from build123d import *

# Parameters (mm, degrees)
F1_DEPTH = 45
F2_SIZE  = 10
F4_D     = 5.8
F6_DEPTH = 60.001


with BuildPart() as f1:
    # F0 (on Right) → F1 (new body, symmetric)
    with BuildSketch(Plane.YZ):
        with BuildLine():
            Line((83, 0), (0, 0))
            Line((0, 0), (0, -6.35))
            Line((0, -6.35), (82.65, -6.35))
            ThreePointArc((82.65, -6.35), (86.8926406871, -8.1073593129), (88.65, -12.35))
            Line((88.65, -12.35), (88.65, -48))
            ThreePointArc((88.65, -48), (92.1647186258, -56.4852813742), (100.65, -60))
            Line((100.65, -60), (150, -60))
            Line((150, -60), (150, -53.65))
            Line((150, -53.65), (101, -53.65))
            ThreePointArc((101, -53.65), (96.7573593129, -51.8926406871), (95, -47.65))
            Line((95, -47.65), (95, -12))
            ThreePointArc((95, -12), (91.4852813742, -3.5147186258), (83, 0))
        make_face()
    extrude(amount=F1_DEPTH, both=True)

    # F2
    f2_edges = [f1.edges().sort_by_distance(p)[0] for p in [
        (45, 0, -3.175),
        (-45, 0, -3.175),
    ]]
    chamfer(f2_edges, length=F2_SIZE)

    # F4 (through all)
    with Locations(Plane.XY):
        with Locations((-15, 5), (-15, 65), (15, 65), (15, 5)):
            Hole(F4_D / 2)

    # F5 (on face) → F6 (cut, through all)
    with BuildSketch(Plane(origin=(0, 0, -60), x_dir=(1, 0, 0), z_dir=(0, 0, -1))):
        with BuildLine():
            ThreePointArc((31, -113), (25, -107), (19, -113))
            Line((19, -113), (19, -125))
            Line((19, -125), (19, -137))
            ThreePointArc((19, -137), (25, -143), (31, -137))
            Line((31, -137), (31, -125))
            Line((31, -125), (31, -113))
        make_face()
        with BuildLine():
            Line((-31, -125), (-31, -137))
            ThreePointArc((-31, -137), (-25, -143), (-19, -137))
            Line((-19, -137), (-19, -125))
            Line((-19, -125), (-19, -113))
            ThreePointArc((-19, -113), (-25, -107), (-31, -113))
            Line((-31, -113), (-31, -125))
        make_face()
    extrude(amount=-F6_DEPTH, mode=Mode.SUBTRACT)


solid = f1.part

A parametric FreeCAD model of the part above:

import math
import FreeCAD as App
import Part
import Sketcher
from FreeCAD import Vector


def edges_at(feature, points):
    """Names of the edges that pass closest to the given points."""
    edges = feature.Shape.Edges
    near = lambda p: min(range(len(edges)), key=lambda i: edges[i].distToShape(Part.Vertex(*p))[0])
    return sorted({f"Edge{near(p) + 1}" for p in points})

doc = App.newDocument("Part")
body = doc.addObject("PartDesign::Body", "Body")

# Sketch on YZ plane
sketch1 = body.newObject("Sketcher::SketchObject", "Sketch")
sketch1.AttachmentSupport = (doc.getObject("YZ_Plane"), [""])
sketch1.MapMode = "FlatFace"
sketch1.addGeometry([
    Part.LineSegment(Vector(83, 0, 0), Vector(0, 0, 0)),  # 0
    Part.LineSegment(Vector(0, 0, 0), Vector(0, -6, 0)),  # 1
    Part.LineSegment(Vector(0, -6, 0), Vector(83, -6, 0)),  # 2
    Part.ArcOfCircle(Part.Circle(Vector(83, -12, 0), Vector(0, 0, 1), 6), math.radians(0), math.radians(90)),  # 3
    Part.LineSegment(Vector(89, -12, 0), Vector(89, -48, 0)),  # 4
    Part.ArcOfCircle(Part.Circle(Vector(101, -48, 0), Vector(0, 0, 1), 12), math.radians(180), math.radians(270)),  # 5
    Part.LineSegment(Vector(101, -60, 0), Vector(150, -60, 0)),  # 6
    Part.LineSegment(Vector(150, -60, 0), Vector(150, -54, 0)),  # 7
    Part.LineSegment(Vector(150, -54, 0), Vector(101, -54, 0)),  # 8
    Part.ArcOfCircle(Part.Circle(Vector(101, -48, 0), Vector(0, 0, 1), 6), math.radians(180), math.radians(270)),  # 9
    Part.LineSegment(Vector(95, -48, 0), Vector(95, -12, 0)),  # 10
    Part.ArcOfCircle(Part.Circle(Vector(83, -12, 0), Vector(0, 0, 1), 12), math.radians(0), math.radians(90)),  # 11
], False)
sketch1.addConstraint([
    Sketcher.Constraint("Coincident", 0, 2, 1, 1),
    Sketcher.Constraint("Coincident", 1, 2, 2, 1),
    Sketcher.Constraint("Tangent", 2, 2, 3, 2),
    Sketcher.Constraint("Tangent", 3, 1, 4, 1),
    Sketcher.Constraint("Tangent", 4, 2, 5, 1),
    Sketcher.Constraint("Tangent", 5, 2, 6, 1),
    Sketcher.Constraint("Coincident", 6, 2, 7, 1),
    Sketcher.Constraint("Coincident", 7, 2, 8, 1),
    Sketcher.Constraint("Tangent", 8, 2, 9, 2),
    Sketcher.Constraint("Tangent", 9, 1, 10, 1),
    Sketcher.Constraint("Tangent", 10, 2, 11, 1),
    Sketcher.Constraint("Tangent", 11, 2, 0, 1),
    Sketcher.Constraint("Horizontal", 0),
    Sketcher.Constraint("Vertical", 1),
    Sketcher.Constraint("Horizontal", 2),
    Sketcher.Constraint("Vertical", 4),
    Sketcher.Constraint("Horizontal", 6),
    Sketcher.Constraint("Vertical", 7),
    Sketcher.Constraint("Horizontal", 8),
    Sketcher.Constraint("Vertical", 10),
    Sketcher.Constraint("Coincident", 0, 2, -1, 1),
    Sketcher.Constraint("Equal", 3, 9),
    Sketcher.Constraint("Equal", 5, 11),
    Sketcher.Constraint("Equal", 1, 7),
    Sketcher.Constraint("Radius", 3, 6.0),
    Sketcher.Constraint("Radius", 5, 12.0),
    Sketcher.Constraint("DistanceX", 0, 2, 0, 1, 83.0),
    Sketcher.Constraint("DistanceX", 8, 2, 8, 1, 49.0),
    Sketcher.Constraint("DistanceY", 5, 3, -1, 1, 48.0),
    Sketcher.Constraint("DistanceX", 2, 1, 2, 2, 82.65),
    Sketcher.Constraint("DistanceY", 1, 2, 1, 1, 6.35),
])
pad1 = body.newObject("PartDesign::Pad", "Pad")
pad1.Profile = sketch1
pad1.Length = 90
pad1.Midplane = True
doc.recompute()

chamfer = body.newObject("PartDesign::Chamfer", "Chamfer")
chamfer.Base = (pad1, edges_at(pad1, [(45, 0, -3.175), (-45, 0, -3.175)]))
chamfer.Size = 10

# Sketch on XY plane
sketch2 = body.newObject("Sketcher::SketchObject", "Sketch001")
sketch2.AttachmentSupport = (doc.getObject("XY_Plane"), [""])
sketch2.MapMode = "FlatFace"
sketch2.addGeometry([
    Part.Circle(Vector(-15, 5, 0), Vector(0, 0, 1), 2.9),
    Part.Circle(Vector(-15, 65, 0), Vector(0, 0, 1), 2.9),
    Part.Circle(Vector(15, 65, 0), Vector(0, 0, 1), 2.9),
    Part.Circle(Vector(15, 5, 0), Vector(0, 0, 1), 2.9),
], False)
sketch2.addConstraint([
    Sketcher.Constraint("Equal", 0, 1),
    Sketcher.Constraint("Equal", 1, 2),
    Sketcher.Constraint("Equal", 2, 3),
    Sketcher.Constraint("Symmetric", 1, 3, 2, 3, -2),
    Sketcher.Constraint("Symmetric", 0, 3, 3, 3, -2),
    Sketcher.Constraint("Vertical", 0, 3, 1, 3),
    Sketcher.Constraint("Diameter", 0, 5.8),
    Sketcher.Constraint("DistanceX", 0, 3, -1, 1, 15.0),
    Sketcher.Constraint("DistanceY", -1, 1, 0, 3, 5.0),
    Sketcher.Constraint("DistanceY", -1, 1, 1, 3, 65.0),
])
doc.recompute()
hole = body.newObject("PartDesign::Hole", "Hole")
hole.Profile = sketch2
hole.ThreadType = "None"
hole.Diameter = 5.8
hole.DepthType = "ThroughAll"

# Sketch on XY plane
sketch3 = body.newObject("Sketcher::SketchObject", "Sketch002")
sketch3.AttachmentSupport = (doc.getObject("XY_Plane"), [""])
sketch3.MapMode = "FlatFace"
sketch3.AttachmentOffset = App.Placement(Vector(0, 0, -60), App.Rotation())
sketch3.addGeometry([
    Part.ArcOfCircle(Part.Circle(Vector(25, 113, 0), Vector(0, 0, 1), 6), math.radians(180), math.radians(360)),  # 0
    Part.LineSegment(Vector(19, 113, 0), Vector(19, 137, 0)),  # 1
    Part.ArcOfCircle(Part.Circle(Vector(25, 137, 0), Vector(0, 0, 1), 6), math.radians(0), math.radians(180)),  # 2
    Part.LineSegment(Vector(31, 137, 0), Vector(31, 113, 0)),  # 3
    Part.ArcOfCircle(Part.Circle(Vector(-25, 137, 0), Vector(0, 0, 1), 6), math.radians(0), math.radians(180)),  # 4
    Part.LineSegment(Vector(-19, 137, 0), Vector(-19, 113, 0)),  # 5
    Part.ArcOfCircle(Part.Circle(Vector(-25, 113, 0), Vector(0, 0, 1), 6), math.radians(180), math.radians(360)),  # 6
    Part.LineSegment(Vector(-31, 113, 0), Vector(-31, 137, 0)),  # 7
], False)
sketch3.addConstraint([
    Sketcher.Constraint("Tangent", 0, 1, 1, 1),
    Sketcher.Constraint("Tangent", 1, 2, 2, 2),
    Sketcher.Constraint("Tangent", 2, 1, 3, 1),
    Sketcher.Constraint("Tangent", 3, 2, 0, 2),
    Sketcher.Constraint("Tangent", 4, 1, 5, 1),
    Sketcher.Constraint("Tangent", 5, 2, 6, 2),
    Sketcher.Constraint("Tangent", 6, 1, 7, 1),
    Sketcher.Constraint("Tangent", 7, 2, 4, 2),
    Sketcher.Constraint("Vertical", 1),
    Sketcher.Constraint("Vertical", 3),
    Sketcher.Constraint("Vertical", 5),
    Sketcher.Constraint("Vertical", 7),
    Sketcher.Constraint("Equal", 2, 4),
    Sketcher.Constraint("Symmetric", 2, 3, 4, 3, -2),
    Sketcher.Constraint("Horizontal", 0, 3, 6, 3),
    Sketcher.Constraint("Radius", 0, 6.0),
    Sketcher.Constraint("DistanceY", 1, 1, 1, 2, 24.0),
    Sketcher.Constraint("DistanceX", -1, 1, 0, 3, 25.0),
    Sketcher.Constraint("DistanceY", -1, 1, 0, 3, 113.0),
])
pocket1 = body.newObject("PartDesign::Pocket", "Pocket")
pocket1.Profile = sketch3
pocket1.Type = "ThroughAll"
pocket1.Reversed = True

doc.recompute()
